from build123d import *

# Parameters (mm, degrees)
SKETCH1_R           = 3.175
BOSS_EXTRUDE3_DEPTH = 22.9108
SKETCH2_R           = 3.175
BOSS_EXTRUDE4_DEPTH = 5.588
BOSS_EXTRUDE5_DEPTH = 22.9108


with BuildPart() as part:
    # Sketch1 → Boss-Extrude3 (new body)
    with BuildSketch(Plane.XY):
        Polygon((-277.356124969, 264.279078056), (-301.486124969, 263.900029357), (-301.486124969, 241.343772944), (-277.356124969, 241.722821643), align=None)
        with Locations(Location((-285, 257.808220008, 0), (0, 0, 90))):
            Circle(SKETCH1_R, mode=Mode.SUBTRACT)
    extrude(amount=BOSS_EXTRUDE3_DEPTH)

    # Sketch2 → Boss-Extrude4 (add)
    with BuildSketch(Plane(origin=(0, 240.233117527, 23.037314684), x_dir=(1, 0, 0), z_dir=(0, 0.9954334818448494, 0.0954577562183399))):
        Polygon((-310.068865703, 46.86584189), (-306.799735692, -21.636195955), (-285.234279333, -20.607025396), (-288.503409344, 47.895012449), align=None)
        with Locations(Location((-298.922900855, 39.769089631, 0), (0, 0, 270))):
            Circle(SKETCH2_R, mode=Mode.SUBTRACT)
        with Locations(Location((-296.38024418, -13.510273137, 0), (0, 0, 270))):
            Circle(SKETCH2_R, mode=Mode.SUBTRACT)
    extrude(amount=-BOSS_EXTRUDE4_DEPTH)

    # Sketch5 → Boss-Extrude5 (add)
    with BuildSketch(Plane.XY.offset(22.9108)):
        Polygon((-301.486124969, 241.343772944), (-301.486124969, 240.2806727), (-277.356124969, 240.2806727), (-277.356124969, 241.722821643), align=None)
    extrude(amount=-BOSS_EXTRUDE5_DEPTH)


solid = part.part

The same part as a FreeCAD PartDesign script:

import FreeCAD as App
import Part
import Sketcher
Q = App.Units.Quantity


def add_polygon(sketch, points):
    """Adds a closed chain of lines whose ends are joined by coincident constraints."""
    first, n = sketch.GeometryCount, len(points)
    for a, b in zip(points, points[1:] + points[:1]):
        sketch.addGeometry(Part.LineSegment(App.Vector(*a, 0), App.Vector(*b, 0)), False)
    for i in range(n):
        sketch.addConstraint(Sketcher.Constraint("Coincident", first + i, 2, first + (i + 1) % n, 1))

doc = App.newDocument("Part")
body = doc.addObject("PartDesign::Body", "Body")

sketch1 = body.newObject("Sketcher::SketchObject", "Sketch")
sketch1.AttachmentSupport = (doc.getObject("XY_Plane"), [""])
sketch1.MapMode = "FlatFace"
add_polygon(sketch1, [(-277.4, 264.3), (-301.5, 263.9), (-301.5, 241.3), (-277.4, 241.7)])
sketch1.addGeometry(Part.Circle(App.Vector(-285, 257.8, 0), App.Vector(0, 0, 1), 3.2), False)
sketch1.addConstraint([
    Sketcher.Constraint("Vertical", 1),
    Sketcher.Constraint("Vertical", 3),
    Sketcher.Constraint("Parallel", 0, 2),
    Sketcher.Constraint("Diameter", 4, Q("0.25 in")),
    Sketcher.Constraint("DistanceX", 1, 2, 2, 2, Q("0.95 in")),
    Sketcher.Constraint("DistanceX", 4, 3, -1, 1, Q("285 mm")),
    Sketcher.Constraint("DistanceY", 2, 2, 4, 3, Q("16.085398 mm")),
    Sketcher.Constraint("DistanceY", 1, 2, 1, 1, Q("22.556256 mm")),
    Sketcher.Constraint("DistanceY", -1, 1, 4, 3, Q("257.80822 mm")),
    Sketcher.Constraint("DistanceY", -1, 1, 0, 2, Q("263.900029 mm")),
    Sketcher.Constraint("DistanceX", 0, 2, -1, 1, Q("301.486125 mm")),
])
pad1 = body.newObject("PartDesign::Pad", "Pad")
pad1.Profile = sketch1
pad1.Length = Q("0.902 in")

sketch2 = body.newObject("Sketcher::SketchObject", "Sketch001")
sketch2.Placement = App.Placement(App.Vector(0, 240.233118, 23.037315), App.Rotation(App.Vector(1, 0, 0), App.Vector(0, 0.095457756, -0.995433482), App.Vector(0, 0.995433482, 0.095457756), "ZXY"))
add_polygon(sketch2, [(-310.1, 46.9), (-306.8, -21.6), (-285.2, -20.6), (-288.5, 47.9)])
sketch2.addGeometry(Part.Circle(App.Vector(-296.4, -13.5, 0), App.Vector(0, 0, 1), 3.2), False)
sketch2.addGeometry(Part.Circle(App.Vector(-298.9, 39.8, 0), App.Vector(0, 0, 1), 3.2), False)
sketch2.addConstraint([
    Sketcher.Constraint("Equal", 4, 5),
    Sketcher.Constraint("Perpendicular", 0, 1),
    Sketcher.Constraint("Perpendicular", 1, 2),
    Sketcher.Constraint("Perpendicular", 2, 3),
    Sketcher.Constraint("Diameter", 4, Q("0.25 in")),
    Sketcher.Constraint("Distance", 0, Q("2.7 in")),
    Sketcher.Constraint("Distance", 1, Q("0.85 in")),
    Sketcher.Constraint("DistanceX", 5, 3, -1, 1, Q("298.922901 mm")),
    Sketcher.Constraint("DistanceY", -1, 1, 5, 3, Q("39.76909 mm")),
    Sketcher.Constraint("DistanceX", 1, 2, -1, 1, Q("285.234279 mm")),
    Sketcher.Constraint("DistanceX", 2, 2, -1, 1, Q("288.503409 mm")),
    Sketcher.Constraint("DistanceY", -1, 1, 3, 2, Q("46.865842 mm")),
    Sketcher.Constraint("DistanceX", 0, 2, 4, 3, Q("10.419492 mm")),
    Sketcher.Constraint("DistanceY", 4, 3, -1, 1, Q("13.510273 mm")),
])
pad2 = body.newObject("PartDesign::Pad", "Pad001")
pad2.Profile = sketch2
pad2.Length = Q("0.22 in")
pad2.Reversed = True

sketch3 = body.newObject("Sketcher::SketchObject", "Sketch002")
sketch3.AttachmentSupport = (doc.getObject("XY_Plane"), [""])
sketch3.MapMode = "FlatFace"
sketch3.AttachmentOffset = App.Placement(App.Vector(0, 0, 0.902 * 25.4), App.Rotation())
add_polygon(sketch3, [(-301.5, 241.3), (-301.5, 240.3), (-277.4, 240.3), (-277.4, 241.7)])
sketch3.addConstraint([
    Sketcher.Constraint("Vertical", 0),
    Sketcher.Constraint("Horizontal", 1),
    Sketcher.Constraint("Vertical", 2),
    Sketcher.Constraint("DistanceX", 1, 1, 1, 2, Q("0.95 in")),
    Sketcher.Constraint("DistanceY", 0, 2, 0, 1, Q("1.0631 mm")),
    Sketcher.Constraint("DistanceY", 2, 1, 2, 2, Q("1.442149 mm")),
    Sketcher.Constraint("DistanceY", -1, 1, 2, 2, Q("241.722822 mm")),
    Sketcher.Constraint("DistanceX", 0, 2, -1, 1, Q("301.486125 mm")),
])
pad3 = body.newObject("PartDesign::Pad", "Pad002")
pad3.Profile = sketch3
pad3.Length = Q("0.902 in")
pad3.Reversed = True

doc.recompute()
